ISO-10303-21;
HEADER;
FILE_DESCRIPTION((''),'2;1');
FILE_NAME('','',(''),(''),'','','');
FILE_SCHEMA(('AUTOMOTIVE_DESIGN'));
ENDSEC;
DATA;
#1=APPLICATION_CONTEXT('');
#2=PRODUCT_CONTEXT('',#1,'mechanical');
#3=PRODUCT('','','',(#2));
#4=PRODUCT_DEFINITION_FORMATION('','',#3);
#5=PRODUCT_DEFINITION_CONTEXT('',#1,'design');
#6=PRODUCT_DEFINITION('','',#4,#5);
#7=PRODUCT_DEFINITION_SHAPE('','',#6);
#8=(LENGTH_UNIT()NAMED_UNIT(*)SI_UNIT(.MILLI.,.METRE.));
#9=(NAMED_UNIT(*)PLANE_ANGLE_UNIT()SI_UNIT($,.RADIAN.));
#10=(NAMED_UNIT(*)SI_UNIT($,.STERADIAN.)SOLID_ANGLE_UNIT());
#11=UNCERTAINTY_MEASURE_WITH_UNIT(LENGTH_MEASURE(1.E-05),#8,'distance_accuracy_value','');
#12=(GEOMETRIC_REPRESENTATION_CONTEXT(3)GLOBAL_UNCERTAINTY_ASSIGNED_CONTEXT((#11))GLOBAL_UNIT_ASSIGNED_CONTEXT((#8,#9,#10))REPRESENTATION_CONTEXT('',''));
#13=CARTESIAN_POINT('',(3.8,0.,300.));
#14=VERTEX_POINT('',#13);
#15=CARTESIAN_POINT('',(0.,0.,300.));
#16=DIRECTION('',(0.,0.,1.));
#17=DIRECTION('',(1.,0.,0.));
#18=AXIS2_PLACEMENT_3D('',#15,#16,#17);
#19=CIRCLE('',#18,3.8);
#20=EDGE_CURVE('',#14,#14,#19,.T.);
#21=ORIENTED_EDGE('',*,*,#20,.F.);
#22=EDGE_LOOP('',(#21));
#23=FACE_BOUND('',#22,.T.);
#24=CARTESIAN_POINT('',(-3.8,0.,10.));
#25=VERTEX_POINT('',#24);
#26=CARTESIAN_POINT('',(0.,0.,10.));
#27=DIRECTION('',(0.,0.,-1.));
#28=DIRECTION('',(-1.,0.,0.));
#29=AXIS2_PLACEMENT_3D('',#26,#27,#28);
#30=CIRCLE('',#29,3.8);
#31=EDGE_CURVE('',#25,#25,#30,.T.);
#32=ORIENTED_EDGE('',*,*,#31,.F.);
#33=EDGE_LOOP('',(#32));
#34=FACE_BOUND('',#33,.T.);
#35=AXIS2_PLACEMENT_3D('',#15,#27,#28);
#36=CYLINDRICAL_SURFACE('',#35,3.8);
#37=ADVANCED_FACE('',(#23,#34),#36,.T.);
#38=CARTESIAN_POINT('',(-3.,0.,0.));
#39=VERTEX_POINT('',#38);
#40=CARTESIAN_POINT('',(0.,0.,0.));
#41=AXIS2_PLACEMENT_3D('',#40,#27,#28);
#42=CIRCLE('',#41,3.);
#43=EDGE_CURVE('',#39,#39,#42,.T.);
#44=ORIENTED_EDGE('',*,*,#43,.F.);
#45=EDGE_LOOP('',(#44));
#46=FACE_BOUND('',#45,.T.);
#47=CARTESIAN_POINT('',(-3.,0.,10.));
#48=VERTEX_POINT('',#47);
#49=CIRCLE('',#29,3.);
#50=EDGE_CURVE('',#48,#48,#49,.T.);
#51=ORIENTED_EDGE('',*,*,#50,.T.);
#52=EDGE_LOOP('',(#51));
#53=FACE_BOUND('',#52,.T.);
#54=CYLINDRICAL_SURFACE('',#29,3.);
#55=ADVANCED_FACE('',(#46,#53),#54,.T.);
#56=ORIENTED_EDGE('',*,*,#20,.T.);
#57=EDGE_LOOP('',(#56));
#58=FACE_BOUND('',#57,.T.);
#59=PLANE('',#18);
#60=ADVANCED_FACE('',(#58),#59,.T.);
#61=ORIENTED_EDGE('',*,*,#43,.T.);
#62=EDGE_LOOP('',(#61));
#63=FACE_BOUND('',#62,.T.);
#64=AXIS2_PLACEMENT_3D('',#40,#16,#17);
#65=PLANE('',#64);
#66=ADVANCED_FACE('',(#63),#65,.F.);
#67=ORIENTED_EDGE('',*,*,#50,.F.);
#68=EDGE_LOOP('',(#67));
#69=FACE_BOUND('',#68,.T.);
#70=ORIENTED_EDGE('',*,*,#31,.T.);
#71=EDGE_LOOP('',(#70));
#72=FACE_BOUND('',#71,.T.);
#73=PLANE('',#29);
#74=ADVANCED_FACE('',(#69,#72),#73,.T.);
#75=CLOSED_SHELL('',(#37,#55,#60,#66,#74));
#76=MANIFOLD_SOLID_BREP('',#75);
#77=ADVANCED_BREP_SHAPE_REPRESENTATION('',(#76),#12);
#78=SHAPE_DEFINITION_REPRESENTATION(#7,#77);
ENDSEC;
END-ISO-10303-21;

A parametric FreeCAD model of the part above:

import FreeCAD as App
import Part
import Sketcher

V = App.Vector
Q = App.Units.Quantity


def add_polygon(sketch, points):
    """Adds a closed chain of lines whose ends are joined by coincident constraints."""
    first, n = sketch.GeometryCount, len(points)
    for a, b in zip(points, points[1:] + points[:1]):
        sketch.addGeometry(Part.LineSegment(App.Vector(*a, 0), App.Vector(*b, 0)), False)
    for i in range(n):
        sketch.addConstraint(Sketcher.Constraint("Coincident", first + i, 2, first + (i + 1) % n, 1))

doc = App.newDocument("Part")
params = doc.addObject("Spreadsheet::Sheet", "Params")
for row, (alias, value) in enumerate([
    ("sketch1_diameter", "7.6 mm"),
    ("pad1_length", "300 mm"),
    ("sketch2_diameter", "6 mm"),
    ("pocket1_length", "10 mm"),
], start=1):
    params.set(f"A{row}", alias)
    params.set(f"B{row}", "=" + value)
    params.setAlias(f"B{row}", alias)

body = doc.addObject("PartDesign::Body", "Body")

sketch1 = body.newObject("Sketcher::SketchObject", "Sketch")
sketch1.AttachmentSupport = (doc.getObject("XY_Plane"), [""])
sketch1.MapMode = "FlatFace"
sketch1.addGeometry(Part.Circle(V(0, 0, 0), V(0, 0, 1), 3.8), False)
sketch1.addConstraint(Sketcher.Constraint("Coincident", 0, 3, -1, 1))
sketch1.addConstraint(Sketcher.Constraint("Diameter", 0, Q("7.6 mm")))
sketch1.setExpression("Constraints[1]", "Params.sketch1_diameter")
pad1 = body.newObject("PartDesign::Pad", "Pad")
pad1.Profile = sketch1
pad1.setExpression("Length", "Params.pad1_length")

sketch2 = body.newObject("Sketcher::SketchObject", "Sketch001")
sketch2.AttachmentSupport = (doc.getObject("XY_Plane"), [""])
sketch2.MapMode = "FlatFace"
add_polygon(sketch2, [(34.8, 34.8), (34.8, -34.8), (-34.8, -34.8), (-34.8, 34.8)])
sketch2.addGeometry(Part.Circle(V(0, 0, 0), V(0, 0, 1), 3), False)
sketch2.addConstraint(Sketcher.Constraint("Vertical", 0))
sketch2.addConstraint(Sketcher.Constraint("Horizontal", 1))
sketch2.addConstraint(Sketcher.Constraint("Vertical", 2))
sketch2.addConstraint(Sketcher.Constraint("Horizontal", 3))
sketch2.addConstraint(Sketcher.Constraint("Coincident", 4, 3, -1, 1))
sketch2.addConstraint(Sketcher.Constraint("Symmetric", 0, 2, 2, 2, -1, 1))
sketch2.addConstraint(Sketcher.Constraint("Equal", 3, 0))
sketch2.addConstraint(Sketcher.Constraint("Diameter", 4, Q("6 mm")))
sketch2.addConstraint(Sketcher.Constraint("DistanceX", 1, 2, 1, 1, Q("69.638 mm")))
sketch2.setExpression("Constraints[11]", "Params.sketch2_diameter")
pocket1 = body.newObject("PartDesign::Pocket", "Pocket")
pocket1.Profile = sketch2
pocket1.setExpression("Length", "Params.pocket1_length")
pocket1.Reversed = True

doc.recompute()
